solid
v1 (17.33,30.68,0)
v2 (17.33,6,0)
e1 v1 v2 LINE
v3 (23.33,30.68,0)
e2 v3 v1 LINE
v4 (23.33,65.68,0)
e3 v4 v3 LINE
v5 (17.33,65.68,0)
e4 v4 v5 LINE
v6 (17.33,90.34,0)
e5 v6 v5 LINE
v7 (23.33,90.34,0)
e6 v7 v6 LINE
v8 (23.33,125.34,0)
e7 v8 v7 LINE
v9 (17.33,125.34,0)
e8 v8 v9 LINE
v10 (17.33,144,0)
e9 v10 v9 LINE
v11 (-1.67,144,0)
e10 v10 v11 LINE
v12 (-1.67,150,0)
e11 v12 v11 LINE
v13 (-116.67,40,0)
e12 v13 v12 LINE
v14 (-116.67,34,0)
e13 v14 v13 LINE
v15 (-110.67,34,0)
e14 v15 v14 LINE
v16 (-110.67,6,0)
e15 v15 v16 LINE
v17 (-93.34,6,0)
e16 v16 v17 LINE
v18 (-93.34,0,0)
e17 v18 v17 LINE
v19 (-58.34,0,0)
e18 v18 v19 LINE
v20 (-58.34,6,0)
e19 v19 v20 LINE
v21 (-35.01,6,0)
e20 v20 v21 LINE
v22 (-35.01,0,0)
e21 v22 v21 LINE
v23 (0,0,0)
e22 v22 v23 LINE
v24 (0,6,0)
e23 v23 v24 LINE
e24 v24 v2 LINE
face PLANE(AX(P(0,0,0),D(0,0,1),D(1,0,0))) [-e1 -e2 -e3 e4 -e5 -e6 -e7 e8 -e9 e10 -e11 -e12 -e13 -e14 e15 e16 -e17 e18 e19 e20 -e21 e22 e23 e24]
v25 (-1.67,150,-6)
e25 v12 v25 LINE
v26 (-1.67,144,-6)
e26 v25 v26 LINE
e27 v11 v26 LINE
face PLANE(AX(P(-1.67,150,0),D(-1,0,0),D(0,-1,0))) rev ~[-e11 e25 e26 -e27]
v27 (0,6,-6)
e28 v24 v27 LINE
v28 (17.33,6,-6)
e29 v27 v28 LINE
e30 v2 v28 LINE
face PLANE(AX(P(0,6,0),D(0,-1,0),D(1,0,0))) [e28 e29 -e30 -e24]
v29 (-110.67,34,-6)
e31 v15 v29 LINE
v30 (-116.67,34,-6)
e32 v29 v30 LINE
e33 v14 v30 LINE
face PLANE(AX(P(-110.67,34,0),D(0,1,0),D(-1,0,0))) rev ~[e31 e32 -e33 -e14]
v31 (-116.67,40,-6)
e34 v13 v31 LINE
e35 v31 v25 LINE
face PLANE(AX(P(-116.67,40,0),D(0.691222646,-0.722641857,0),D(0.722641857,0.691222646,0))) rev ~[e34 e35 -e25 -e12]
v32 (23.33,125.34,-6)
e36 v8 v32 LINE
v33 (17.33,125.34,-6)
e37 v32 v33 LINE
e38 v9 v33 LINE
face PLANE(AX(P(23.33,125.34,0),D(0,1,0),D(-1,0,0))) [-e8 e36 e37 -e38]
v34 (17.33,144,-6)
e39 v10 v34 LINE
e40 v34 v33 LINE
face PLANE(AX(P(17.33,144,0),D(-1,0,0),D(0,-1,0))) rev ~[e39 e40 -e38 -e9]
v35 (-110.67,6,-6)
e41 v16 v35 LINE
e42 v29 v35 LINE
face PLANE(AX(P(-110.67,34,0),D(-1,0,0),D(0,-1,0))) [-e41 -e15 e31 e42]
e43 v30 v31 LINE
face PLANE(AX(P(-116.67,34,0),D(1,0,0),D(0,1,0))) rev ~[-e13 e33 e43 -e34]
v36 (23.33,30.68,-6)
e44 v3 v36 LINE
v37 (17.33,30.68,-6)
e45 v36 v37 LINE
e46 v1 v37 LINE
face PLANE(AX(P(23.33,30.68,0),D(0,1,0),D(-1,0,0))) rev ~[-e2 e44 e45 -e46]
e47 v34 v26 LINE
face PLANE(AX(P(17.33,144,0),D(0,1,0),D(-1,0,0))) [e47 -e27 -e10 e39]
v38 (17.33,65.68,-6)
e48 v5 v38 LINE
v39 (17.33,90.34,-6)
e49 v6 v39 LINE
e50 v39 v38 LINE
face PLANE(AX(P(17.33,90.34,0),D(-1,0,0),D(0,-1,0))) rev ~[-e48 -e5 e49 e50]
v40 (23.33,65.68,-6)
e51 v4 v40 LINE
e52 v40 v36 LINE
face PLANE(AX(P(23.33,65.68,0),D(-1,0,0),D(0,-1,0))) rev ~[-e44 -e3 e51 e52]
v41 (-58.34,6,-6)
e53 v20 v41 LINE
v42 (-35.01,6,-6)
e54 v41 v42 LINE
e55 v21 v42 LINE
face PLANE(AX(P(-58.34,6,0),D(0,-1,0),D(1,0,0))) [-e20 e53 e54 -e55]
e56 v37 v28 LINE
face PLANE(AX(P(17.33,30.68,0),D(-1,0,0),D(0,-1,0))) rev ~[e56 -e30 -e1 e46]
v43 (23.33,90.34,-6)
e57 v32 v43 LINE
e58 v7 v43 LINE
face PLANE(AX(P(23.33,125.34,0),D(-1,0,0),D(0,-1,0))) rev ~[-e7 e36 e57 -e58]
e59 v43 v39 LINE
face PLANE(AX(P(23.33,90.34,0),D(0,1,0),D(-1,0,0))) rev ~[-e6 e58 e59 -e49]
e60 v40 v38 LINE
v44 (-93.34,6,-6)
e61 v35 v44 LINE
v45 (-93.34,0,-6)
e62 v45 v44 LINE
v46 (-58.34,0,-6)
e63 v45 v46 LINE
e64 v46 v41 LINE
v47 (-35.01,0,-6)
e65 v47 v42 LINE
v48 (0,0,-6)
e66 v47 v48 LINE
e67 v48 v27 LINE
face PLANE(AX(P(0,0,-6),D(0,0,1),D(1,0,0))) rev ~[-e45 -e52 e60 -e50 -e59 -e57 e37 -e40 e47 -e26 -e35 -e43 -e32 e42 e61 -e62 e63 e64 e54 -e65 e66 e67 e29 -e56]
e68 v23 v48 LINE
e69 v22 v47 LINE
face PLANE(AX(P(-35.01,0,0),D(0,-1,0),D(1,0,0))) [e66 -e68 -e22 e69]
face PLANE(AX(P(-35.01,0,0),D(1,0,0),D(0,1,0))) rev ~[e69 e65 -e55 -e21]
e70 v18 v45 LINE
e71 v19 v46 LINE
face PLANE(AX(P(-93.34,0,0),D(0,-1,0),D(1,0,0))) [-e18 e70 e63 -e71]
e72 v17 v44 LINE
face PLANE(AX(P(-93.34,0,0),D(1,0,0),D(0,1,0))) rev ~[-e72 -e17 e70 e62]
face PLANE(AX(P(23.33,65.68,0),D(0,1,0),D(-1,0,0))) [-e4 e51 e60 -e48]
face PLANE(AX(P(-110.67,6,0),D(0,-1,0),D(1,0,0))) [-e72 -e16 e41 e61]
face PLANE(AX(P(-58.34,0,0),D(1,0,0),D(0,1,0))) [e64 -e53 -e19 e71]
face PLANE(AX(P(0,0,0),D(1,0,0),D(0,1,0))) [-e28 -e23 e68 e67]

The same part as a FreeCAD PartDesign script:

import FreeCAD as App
import Part
import Sketcher

V = App.Vector
Q = App.Units.Quantity

doc = App.newDocument("Part")
body = doc.addObject("PartDesign::Body", "Body")

# Sketch on XY plane
sketch1 = body.newObject("Sketcher::SketchObject", "Sketch")
sketch1.AttachmentSupport = (doc.getObject("XY_Plane"), [""])
sketch1.MapMode = "FlatFace"
sketch1.addGeometry([
    Part.LineSegment(V(-35, 0, 0), V(0, 0, 0)),  # 0
    Part.LineSegment(V(0, 0, 0), V(0, 6, 0)),  # 1
    Part.LineSegment(V(0, 6, 0), V(17, 6, 0)),  # 2
    Part.LineSegment(V(17, 6, 0), V(17, 31, 0)),  # 3
    Part.LineSegment(V(17, 31, 0), V(23, 31, 0)),  # 4
    Part.LineSegment(V(23, 31, 0), V(23, 66, 0)),  # 5
    Part.LineSegment(V(23, 66, 0), V(17, 66, 0)),  # 6
    Part.LineSegment(V(17, 66, 0), V(17, 90, 0)),  # 7
    Part.LineSegment(V(17, 90, 0), V(23, 90, 0)),  # 8
    Part.LineSegment(V(23, 90, 0), V(23, 125, 0)),  # 9
    Part.LineSegment(V(23, 125, 0), V(17, 125, 0)),  # 10
    Part.LineSegment(V(17, 125, 0), V(17, 144, 0)),  # 11
    Part.LineSegment(V(17, 144, 0), V(-2, 144, 0)),  # 12
    Part.LineSegment(V(-2, 144, 0), V(-2, 150, 0)),  # 13
    Part.LineSegment(V(-2, 150, 0), V(-117, 40, 0)),  # 14
    Part.LineSegment(V(-117, 40, 0), V(-117, 34, 0)),  # 15
    Part.LineSegment(V(-117, 34, 0), V(-111, 34, 0)),  # 16
    Part.LineSegment(V(-111, 34, 0), V(-111, 6, 0)),  # 17
    Part.LineSegment(V(-111, 6, 0), V(-93, 6, 0)),  # 18
    Part.LineSegment(V(-93, 6, 0), V(-93, 0, 0)),  # 19
    Part.LineSegment(V(-93, 0, 0), V(-58, 0, 0)),  # 20
    Part.LineSegment(V(-58, 0, 0), V(-58, 6, 0)),  # 21
    Part.LineSegment(V(-58, 6, 0), V(-35, 6, 0)),  # 22
    Part.LineSegment(V(-35, 6, 0), V(-35, 0, 0)),  # 23
], False)
sketch1.addConstraint([
    Sketcher.Constraint("Coincident", 0, 2, 1, 1),
    Sketcher.Constraint("Coincident", 1, 2, 2, 1),
    Sketcher.Constraint("Coincident", 2, 2, 3, 1),
    Sketcher.Constraint("Coincident", 3, 2, 4, 1),
    Sketcher.Constraint("Coincident", 4, 2, 5, 1),
    Sketcher.Constraint("Coincident", 5, 2, 6, 1),
    Sketcher.Constraint("Coincident", 6, 2, 7, 1),
    Sketcher.Constraint("Coincident", 7, 2, 8, 1),
    Sketcher.Constraint("Coincident", 8, 2, 9, 1),
    Sketcher.Constraint("Coincident", 9, 2, 10, 1),
    Sketcher.Constraint("Coincident", 10, 2, 11, 1),
    Sketcher.Constraint("Coincident", 11, 2, 12, 1),
    Sketcher.Constraint("Coincident", 12, 2, 13, 1),
    Sketcher.Constraint("Coincident", 13, 2, 14, 1),
    Sketcher.Constraint("Coincident", 14, 2, 15, 1),
    Sketcher.Constraint("Coincident", 15, 2, 16, 1),
    Sketcher.Constraint("Coincident", 16, 2, 17, 1),
    Sketcher.Constraint("Coincident", 17, 2, 18, 1),
    Sketcher.Constraint("Coincident", 18, 2, 19, 1),
    Sketcher.Constraint("Coincident", 19, 2, 20, 1),
    Sketcher.Constraint("Coincident", 20, 2, 21, 1),
    Sketcher.Constraint("Coincident", 21, 2, 22, 1),
    Sketcher.Constraint("Coincident", 22, 2, 23, 1),
    Sketcher.Constraint("Coincident", 23, 2, 0, 1),
    Sketcher.Constraint("Horizontal", 0),
    Sketcher.Constraint("Vertical", 1),
    Sketcher.Constraint("Horizontal", 2),
    Sketcher.Constraint("Vertical", 3),
    Sketcher.Constraint("Horizontal", 4),
    Sketcher.Constraint("Vertical", 5),
    Sketcher.Constraint("Horizontal", 6),
    Sketcher.Constraint("Vertical", 7),
    Sketcher.Constraint("Horizontal", 8),
    Sketcher.Constraint("Vertical", 9),
    Sketcher.Constraint("Horizontal", 10),
    Sketcher.Constraint("Vertical", 11),
    Sketcher.Constraint("Horizontal", 12),
    Sketcher.Constraint("Vertical", 13),
    Sketcher.Constraint("Vertical", 15),
    Sketcher.Constraint("Horizontal", 16),
    Sketcher.Constraint("Vertical", 17),
    Sketcher.Constraint("Horizontal", 18),
    Sketcher.Constraint("Vertical", 19),
    Sketcher.Constraint("Horizontal", 20),
    Sketcher.Constraint("Vertical", 21),
    Sketcher.Constraint("Horizontal", 22),
    Sketcher.Constraint("Vertical", 23),
    Sketcher.Constraint("Coincident", 0, 2, -1, 1),
    Sketcher.Constraint("PointOnObject", 19, 2, -1),
    Sketcher.Constraint("Horizontal", 2, 2, 17, 2),
    Sketcher.Constraint("Horizontal", 18, 2, 21, 2),
    Sketcher.Constraint("Vertical", 3, 2, 6, 2),
    Sketcher.Constraint("Vertical", 5, 2, 8, 2),
    Sketcher.Constraint("Vertical", 7, 2, 10, 2),
    Sketcher.Constraint("Equal", 10, 16),
    Sketcher.Constraint("Equal", 2, 18),
    Sketcher.Constraint("Equal", 16, 1),
    Sketcher.Constraint("Equal", 20, 5),
    Sketcher.Constraint("Equal", 5, 9),
    Sketcher.Constraint("Equal", 1, 13),
    Sketcher.Constraint("Equal", 13, 15),
    Sketcher.Constraint("DistanceX", 4, 1, 4, 2, Q("6 mm")),
    Sketcher.Constraint("DistanceX", 12, 2, 12, 1, Q("19 mm")),
    Sketcher.Constraint("DistanceX", 20, 1, 20, 2, Q("35 mm")),
    Sketcher.Constraint("DistanceY", 17, 2, 17, 1, Q("28 mm")),
    Sketcher.Constraint("DistanceY", -1, 1, 11, 2, Q("144 mm")),
    Sketcher.Constraint("DistanceX", 14, 2, 3, 2, Q("134 mm")),
    Sketcher.Constraint("DistanceX", 0, 1, 0, 2, Q("35.01 mm")),
    Sketcher.Constraint("DistanceX", 2, 1, 2, 2, Q("17.33 mm")),
    Sketcher.Constraint("DistanceY", 3, 1, 3, 2, Q("24.68 mm")),
    Sketcher.Constraint("DistanceY", 7, 1, 7, 2, Q("24.66 mm")),
])
pad1 = body.newObject("PartDesign::Pad", "Pad")
pad1.Profile = sketch1
pad1.Length = 6
pad1.Reversed = True

doc.recompute()
